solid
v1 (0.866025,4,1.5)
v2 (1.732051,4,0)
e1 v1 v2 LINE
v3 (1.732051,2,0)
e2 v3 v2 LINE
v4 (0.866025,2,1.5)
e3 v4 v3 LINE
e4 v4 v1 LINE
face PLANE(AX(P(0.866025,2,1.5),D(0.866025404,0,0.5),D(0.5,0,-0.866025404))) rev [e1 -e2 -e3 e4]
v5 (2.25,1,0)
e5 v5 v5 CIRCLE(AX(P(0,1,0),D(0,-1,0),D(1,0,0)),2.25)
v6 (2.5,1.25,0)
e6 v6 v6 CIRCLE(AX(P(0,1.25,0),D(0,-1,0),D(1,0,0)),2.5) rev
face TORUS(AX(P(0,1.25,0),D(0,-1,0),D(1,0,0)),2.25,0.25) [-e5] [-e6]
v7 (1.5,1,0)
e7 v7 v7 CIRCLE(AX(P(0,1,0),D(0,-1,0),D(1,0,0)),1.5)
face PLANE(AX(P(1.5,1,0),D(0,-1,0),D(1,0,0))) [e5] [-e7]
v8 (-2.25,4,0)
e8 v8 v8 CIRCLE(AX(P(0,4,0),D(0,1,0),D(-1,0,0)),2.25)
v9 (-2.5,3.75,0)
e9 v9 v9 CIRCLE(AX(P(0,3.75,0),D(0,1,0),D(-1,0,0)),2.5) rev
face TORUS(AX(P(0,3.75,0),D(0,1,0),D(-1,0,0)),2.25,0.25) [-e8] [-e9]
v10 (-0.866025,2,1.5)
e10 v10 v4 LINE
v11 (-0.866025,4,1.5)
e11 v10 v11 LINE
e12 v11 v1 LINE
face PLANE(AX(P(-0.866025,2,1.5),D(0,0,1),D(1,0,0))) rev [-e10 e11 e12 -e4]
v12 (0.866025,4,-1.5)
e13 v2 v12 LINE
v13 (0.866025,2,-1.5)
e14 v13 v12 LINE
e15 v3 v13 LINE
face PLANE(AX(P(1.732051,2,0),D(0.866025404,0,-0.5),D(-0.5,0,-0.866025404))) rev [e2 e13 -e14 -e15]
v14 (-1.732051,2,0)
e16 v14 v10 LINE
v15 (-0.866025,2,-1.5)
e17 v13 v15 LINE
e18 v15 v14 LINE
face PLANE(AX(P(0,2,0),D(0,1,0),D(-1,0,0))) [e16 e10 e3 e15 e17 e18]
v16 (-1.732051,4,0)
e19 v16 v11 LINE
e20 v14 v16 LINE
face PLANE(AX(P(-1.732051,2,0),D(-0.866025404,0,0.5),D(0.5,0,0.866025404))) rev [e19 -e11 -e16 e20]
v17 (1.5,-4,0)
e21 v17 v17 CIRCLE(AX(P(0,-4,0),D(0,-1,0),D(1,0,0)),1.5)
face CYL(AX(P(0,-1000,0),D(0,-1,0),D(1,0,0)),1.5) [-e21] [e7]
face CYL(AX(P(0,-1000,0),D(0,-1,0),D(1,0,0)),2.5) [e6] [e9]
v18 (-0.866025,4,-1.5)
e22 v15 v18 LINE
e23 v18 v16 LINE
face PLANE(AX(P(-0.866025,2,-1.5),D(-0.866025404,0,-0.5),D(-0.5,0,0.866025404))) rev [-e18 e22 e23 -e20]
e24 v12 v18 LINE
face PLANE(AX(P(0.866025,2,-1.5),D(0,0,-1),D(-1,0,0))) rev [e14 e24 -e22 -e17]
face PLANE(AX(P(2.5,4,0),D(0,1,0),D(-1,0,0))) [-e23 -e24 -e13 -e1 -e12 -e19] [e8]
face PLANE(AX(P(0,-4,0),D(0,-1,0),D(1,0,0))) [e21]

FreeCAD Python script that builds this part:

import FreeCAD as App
import Part
import Sketcher
Q = App.Units.Quantity


def edges_at(feature, points):
    """Names of the edges that pass closest to the given points."""
    edges = feature.Shape.Edges
    near = lambda p: min(range(len(edges)), key=lambda i: edges[i].distToShape(Part.Vertex(*p))[0])
    return sorted({f"Edge{near(p) + 1}" for p in points})

doc = App.newDocument("Part")
params = doc.addObject("Spreadsheet::Sheet", "Params")
for row, (alias, value) in enumerate([
    ("sketch1_width", "1 mm"),
    ("sketch1_height", "5 mm"),
    ("sketch1_height2", "3 mm"),
    ("sketch1_width2", "1.5 mm"),
    ("revolution_angle", "360 deg"),
    ("pocket1_length", "2 mm"),
    ("fillet_radius", "0.25 mm"),
], start=1):
    params.set(f"A{row}", alias)
    params.set(f"B{row}", "=" + value)
    params.setAlias(f"B{row}", alias)

body = doc.addObject("PartDesign::Body", "Body")

# Sketch on XY plane
sketch1 = doc.addObject("Sketcher::SketchObject", "Sketch")
body.addObject(sketch1)
sketch1.AttachmentSupport = (doc.XY_Plane, [""])
sketch1.MapMode = "FlatFace"
sketch1.addGeometry([
    Part.LineSegment(App.Vector(0, -4, 0), App.Vector(1.5, -4, 0)),  # 0
    Part.LineSegment(App.Vector(1.5, -4, 0), App.Vector(1.5, 1, 0)),  # 1
    Part.LineSegment(App.Vector(1.5, 1, 0), App.Vector(2.5, 1, 0)),  # 2
    Part.LineSegment(App.Vector(2.5, 1, 0), App.Vector(2.5, 4, 0)),  # 3
    Part.LineSegment(App.Vector(2.5, 4, 0), App.Vector(0, 4, 0)),  # 4
    Part.LineSegment(App.Vector(0, 4, 0), App.Vector(0, -4, 0)),  # 5
], False)
sketch1.addConstraint([
    Sketcher.Constraint("Coincident", 0, 2, 1, 1),
    Sketcher.Constraint("Coincident", 1, 2, 2, 1),
    Sketcher.Constraint("Coincident", 2, 2, 3, 1),
    Sketcher.Constraint("Coincident", 3, 2, 4, 1),
    Sketcher.Constraint("Coincident", 4, 2, 5, 1),
    Sketcher.Constraint("Coincident", 5, 2, 0, 1),
    Sketcher.Constraint("Horizontal", 0),
    Sketcher.Constraint("Vertical", 1),
    Sketcher.Constraint("Horizontal", 2),
    Sketcher.Constraint("Vertical", 3),
    Sketcher.Constraint("Horizontal", 4),
    Sketcher.Constraint("Vertical", 5),
    Sketcher.Constraint("Symmetric", 4, 2, 5, 2, -1, 1),
    Sketcher.Constraint("DistanceX", 2, 1, 2, 2, 1.0),
    Sketcher.Constraint("DistanceY", 1, 1, 1, 2, 5.0),
    Sketcher.Constraint("DistanceY", 3, 1, 3, 2, 3.0),
    Sketcher.Constraint("DistanceX", 0, 1, 0, 2, 1.5),
])
sketch1.setExpression("Constraints[13]", "Params.sketch1_width")
sketch1.setExpression("Constraints[14]", "Params.sketch1_height")
sketch1.setExpression("Constraints[15]", "Params.sketch1_height2")
sketch1.setExpression("Constraints[16]", "Params.sketch1_width2")
revolution = doc.addObject("PartDesign::Revolution", "Revolution")
body.addObject(revolution)
revolution.Profile = sketch1
revolution.ReferenceAxis = (sketch1, ["V_Axis"])
revolution.setExpression("Angle", "Params.revolution_angle")

# Sketch on XZ plane
sketch2 = doc.addObject("Sketcher::SketchObject", "Sketch001")
body.addObject(sketch2)
sketch2.AttachmentSupport = (doc.XZ_Plane, [""])
sketch2.MapMode = "FlatFace"
sketch2.AttachmentOffset = App.Placement(App.Vector(0, 0, -4), App.Rotation())
sketch2.addGeometry([
    Part.LineSegment(App.Vector(0.9, -1.5, 0), App.Vector(-0.9, -1.5, 0)),  # 0
    Part.LineSegment(App.Vector(-0.9, -1.5, 0), App.Vector(-1.7, 0, 0)),  # 1
    Part.LineSegment(App.Vector(-1.7, 0, 0), App.Vector(-0.9, 1.5, 0)),  # 2
    Part.LineSegment(App.Vector(-0.9, 1.5, 0), App.Vector(0.9, 1.5, 0)),  # 3
    Part.LineSegment(App.Vector(0.9, 1.5, 0), App.Vector(1.7, 0, 0)),  # 4
    Part.LineSegment(App.Vector(1.7, 0, 0), App.Vector(0.9, -1.5, 0)),  # 5
], False)
sketch2.addConstraint([
    Sketcher.Constraint("Coincident", 0, 2, 1, 1),
    Sketcher.Constraint("Coincident", 1, 2, 2, 1),
    Sketcher.Constraint("Coincident", 2, 2, 3, 1),
    Sketcher.Constraint("Coincident", 3, 2, 4, 1),
    Sketcher.Constraint("Coincident", 4, 2, 5, 1),
    Sketcher.Constraint("Coincident", 5, 2, 0, 1),
    Sketcher.Constraint("Horizontal", 0),
    Sketcher.Constraint("Horizontal", 3),
    Sketcher.Constraint("Symmetric", 0, 2, 3, 2, -1, 1),
    Sketcher.Constraint("Symmetric", 1, 2, 4, 2, -1, 1),
    Sketcher.Constraint("PointOnObject", 1, 2, -1),
    Sketcher.Constraint("Parallel", 2, 5),
    Sketcher.Constraint("Vertical", 0, 2, 2, 2),
    Sketcher.Constraint("Angle", 1, Q("120 deg")),
    Sketcher.Constraint("DistanceY", 0, 2, 2, 2, 3.0),
    Sketcher.Constraint("DistanceX", 0, 2, 0, 1, 1.732051),
])
pocket1 = doc.addObject("PartDesign::Pocket", "Pocket")
body.addObject(pocket1)
pocket1.Profile = sketch2
pocket1.setExpression("Length", "Params.pocket1_length")
pocket1.Reversed = True
doc.recompute()

fillet = doc.addObject("PartDesign::Fillet", "Fillet")
body.addObject(fillet)
fillet.Base = (pocket1, edges_at(pocket1, [(-2.5, 4, 0), (-2.5, 1, 0)]))
fillet.setExpression("Radius", "Params.fillet_radius")

doc.recompute()
